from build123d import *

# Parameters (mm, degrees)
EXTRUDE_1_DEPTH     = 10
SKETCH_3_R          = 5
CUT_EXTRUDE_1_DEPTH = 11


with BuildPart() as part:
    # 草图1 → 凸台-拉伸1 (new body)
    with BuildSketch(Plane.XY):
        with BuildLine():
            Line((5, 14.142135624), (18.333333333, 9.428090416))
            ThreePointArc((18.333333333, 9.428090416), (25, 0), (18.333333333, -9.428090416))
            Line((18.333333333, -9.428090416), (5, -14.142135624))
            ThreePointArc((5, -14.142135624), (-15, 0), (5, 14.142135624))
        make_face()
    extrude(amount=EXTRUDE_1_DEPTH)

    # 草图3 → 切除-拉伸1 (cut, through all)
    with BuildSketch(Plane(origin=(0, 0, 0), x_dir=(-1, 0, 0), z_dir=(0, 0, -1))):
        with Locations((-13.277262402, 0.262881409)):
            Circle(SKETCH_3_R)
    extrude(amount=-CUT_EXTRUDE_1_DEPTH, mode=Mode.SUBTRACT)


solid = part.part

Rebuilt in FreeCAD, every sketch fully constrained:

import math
import FreeCAD as App
import Part
import Sketcher

V = App.Vector
Q = App.Units.Quantity

doc = App.newDocument("Part")
body = doc.addObject("PartDesign::Body", "Body")

# Sketch on XY plane
sketch1 = body.newObject("Sketcher::SketchObject", "Sketch")
sketch1.AttachmentSupport = (doc.getObject("XY_Plane"), [""])
sketch1.MapMode = "FlatFace"
sketch1.addGeometry(Part.LineSegment(V(18, 9, 0), V(5, 14, 0)), False)
sketch1.addGeometry(Part.ArcOfCircle(Part.Circle(V(0, 0, 0), V(0, 0, 1), 15), math.radians(71), math.radians(289)), False)
sketch1.addGeometry(Part.LineSegment(V(5, -14, 0), V(18, -9, 0)), False)
sketch1.addGeometry(Part.ArcOfCircle(Part.Circle(V(15, 0, 0), V(0, 0, 1), 10), math.radians(-71), math.radians(71)), False)
sketch1.addConstraint(Sketcher.Constraint("Tangent", 0, 2, 1, 1))
sketch1.addConstraint(Sketcher.Constraint("Tangent", 1, 2, 2, 1))
sketch1.addConstraint(Sketcher.Constraint("Tangent", 2, 2, 3, 1))
sketch1.addConstraint(Sketcher.Constraint("Tangent", 3, 2, 0, 1))
sketch1.addConstraint(Sketcher.Constraint("Coincident", 1, 3, -1, 1))
sketch1.addConstraint(Sketcher.Constraint("PointOnObject", 3, 3, -1))
sketch1.addConstraint(Sketcher.Constraint("Radius", 1, Q("15 mm")))
sketch1.addConstraint(Sketcher.Constraint("Radius", 3, Q("10 mm")))
sketch1.addConstraint(Sketcher.Constraint("DistanceX", -1, 1, 3, 3, Q("15 mm")))
pad1 = body.newObject("PartDesign::Pad", "Pad")
pad1.Profile = sketch1
pad1.Length = 10

# Sketch on XY plane
sketch2 = body.newObject("Sketcher::SketchObject", "Sketch001")
sketch2.AttachmentSupport = (doc.getObject("XY_Plane"), [""])
sketch2.MapMode = "FlatFace"
sketch2.addGeometry(Part.Circle(V(13, 0, 0), V(0, 0, 1), 5), False)
sketch2.addConstraint(Sketcher.Constraint("Diameter", 0, Q("10 mm")))
sketch2.addConstraint(Sketcher.Constraint("DistanceY", -1, 1, 0, 3, Q("0.262881 mm")))
sketch2.addConstraint(Sketcher.Constraint("DistanceX", -1, 1, 0, 3, Q("13.277262 mm")))
pocket1 = body.newObject("PartDesign::Pocket", "Pocket")
pocket1.Profile = sketch2
pocket1.Type = "ThroughAll"
pocket1.Reversed = True

doc.recompute()
